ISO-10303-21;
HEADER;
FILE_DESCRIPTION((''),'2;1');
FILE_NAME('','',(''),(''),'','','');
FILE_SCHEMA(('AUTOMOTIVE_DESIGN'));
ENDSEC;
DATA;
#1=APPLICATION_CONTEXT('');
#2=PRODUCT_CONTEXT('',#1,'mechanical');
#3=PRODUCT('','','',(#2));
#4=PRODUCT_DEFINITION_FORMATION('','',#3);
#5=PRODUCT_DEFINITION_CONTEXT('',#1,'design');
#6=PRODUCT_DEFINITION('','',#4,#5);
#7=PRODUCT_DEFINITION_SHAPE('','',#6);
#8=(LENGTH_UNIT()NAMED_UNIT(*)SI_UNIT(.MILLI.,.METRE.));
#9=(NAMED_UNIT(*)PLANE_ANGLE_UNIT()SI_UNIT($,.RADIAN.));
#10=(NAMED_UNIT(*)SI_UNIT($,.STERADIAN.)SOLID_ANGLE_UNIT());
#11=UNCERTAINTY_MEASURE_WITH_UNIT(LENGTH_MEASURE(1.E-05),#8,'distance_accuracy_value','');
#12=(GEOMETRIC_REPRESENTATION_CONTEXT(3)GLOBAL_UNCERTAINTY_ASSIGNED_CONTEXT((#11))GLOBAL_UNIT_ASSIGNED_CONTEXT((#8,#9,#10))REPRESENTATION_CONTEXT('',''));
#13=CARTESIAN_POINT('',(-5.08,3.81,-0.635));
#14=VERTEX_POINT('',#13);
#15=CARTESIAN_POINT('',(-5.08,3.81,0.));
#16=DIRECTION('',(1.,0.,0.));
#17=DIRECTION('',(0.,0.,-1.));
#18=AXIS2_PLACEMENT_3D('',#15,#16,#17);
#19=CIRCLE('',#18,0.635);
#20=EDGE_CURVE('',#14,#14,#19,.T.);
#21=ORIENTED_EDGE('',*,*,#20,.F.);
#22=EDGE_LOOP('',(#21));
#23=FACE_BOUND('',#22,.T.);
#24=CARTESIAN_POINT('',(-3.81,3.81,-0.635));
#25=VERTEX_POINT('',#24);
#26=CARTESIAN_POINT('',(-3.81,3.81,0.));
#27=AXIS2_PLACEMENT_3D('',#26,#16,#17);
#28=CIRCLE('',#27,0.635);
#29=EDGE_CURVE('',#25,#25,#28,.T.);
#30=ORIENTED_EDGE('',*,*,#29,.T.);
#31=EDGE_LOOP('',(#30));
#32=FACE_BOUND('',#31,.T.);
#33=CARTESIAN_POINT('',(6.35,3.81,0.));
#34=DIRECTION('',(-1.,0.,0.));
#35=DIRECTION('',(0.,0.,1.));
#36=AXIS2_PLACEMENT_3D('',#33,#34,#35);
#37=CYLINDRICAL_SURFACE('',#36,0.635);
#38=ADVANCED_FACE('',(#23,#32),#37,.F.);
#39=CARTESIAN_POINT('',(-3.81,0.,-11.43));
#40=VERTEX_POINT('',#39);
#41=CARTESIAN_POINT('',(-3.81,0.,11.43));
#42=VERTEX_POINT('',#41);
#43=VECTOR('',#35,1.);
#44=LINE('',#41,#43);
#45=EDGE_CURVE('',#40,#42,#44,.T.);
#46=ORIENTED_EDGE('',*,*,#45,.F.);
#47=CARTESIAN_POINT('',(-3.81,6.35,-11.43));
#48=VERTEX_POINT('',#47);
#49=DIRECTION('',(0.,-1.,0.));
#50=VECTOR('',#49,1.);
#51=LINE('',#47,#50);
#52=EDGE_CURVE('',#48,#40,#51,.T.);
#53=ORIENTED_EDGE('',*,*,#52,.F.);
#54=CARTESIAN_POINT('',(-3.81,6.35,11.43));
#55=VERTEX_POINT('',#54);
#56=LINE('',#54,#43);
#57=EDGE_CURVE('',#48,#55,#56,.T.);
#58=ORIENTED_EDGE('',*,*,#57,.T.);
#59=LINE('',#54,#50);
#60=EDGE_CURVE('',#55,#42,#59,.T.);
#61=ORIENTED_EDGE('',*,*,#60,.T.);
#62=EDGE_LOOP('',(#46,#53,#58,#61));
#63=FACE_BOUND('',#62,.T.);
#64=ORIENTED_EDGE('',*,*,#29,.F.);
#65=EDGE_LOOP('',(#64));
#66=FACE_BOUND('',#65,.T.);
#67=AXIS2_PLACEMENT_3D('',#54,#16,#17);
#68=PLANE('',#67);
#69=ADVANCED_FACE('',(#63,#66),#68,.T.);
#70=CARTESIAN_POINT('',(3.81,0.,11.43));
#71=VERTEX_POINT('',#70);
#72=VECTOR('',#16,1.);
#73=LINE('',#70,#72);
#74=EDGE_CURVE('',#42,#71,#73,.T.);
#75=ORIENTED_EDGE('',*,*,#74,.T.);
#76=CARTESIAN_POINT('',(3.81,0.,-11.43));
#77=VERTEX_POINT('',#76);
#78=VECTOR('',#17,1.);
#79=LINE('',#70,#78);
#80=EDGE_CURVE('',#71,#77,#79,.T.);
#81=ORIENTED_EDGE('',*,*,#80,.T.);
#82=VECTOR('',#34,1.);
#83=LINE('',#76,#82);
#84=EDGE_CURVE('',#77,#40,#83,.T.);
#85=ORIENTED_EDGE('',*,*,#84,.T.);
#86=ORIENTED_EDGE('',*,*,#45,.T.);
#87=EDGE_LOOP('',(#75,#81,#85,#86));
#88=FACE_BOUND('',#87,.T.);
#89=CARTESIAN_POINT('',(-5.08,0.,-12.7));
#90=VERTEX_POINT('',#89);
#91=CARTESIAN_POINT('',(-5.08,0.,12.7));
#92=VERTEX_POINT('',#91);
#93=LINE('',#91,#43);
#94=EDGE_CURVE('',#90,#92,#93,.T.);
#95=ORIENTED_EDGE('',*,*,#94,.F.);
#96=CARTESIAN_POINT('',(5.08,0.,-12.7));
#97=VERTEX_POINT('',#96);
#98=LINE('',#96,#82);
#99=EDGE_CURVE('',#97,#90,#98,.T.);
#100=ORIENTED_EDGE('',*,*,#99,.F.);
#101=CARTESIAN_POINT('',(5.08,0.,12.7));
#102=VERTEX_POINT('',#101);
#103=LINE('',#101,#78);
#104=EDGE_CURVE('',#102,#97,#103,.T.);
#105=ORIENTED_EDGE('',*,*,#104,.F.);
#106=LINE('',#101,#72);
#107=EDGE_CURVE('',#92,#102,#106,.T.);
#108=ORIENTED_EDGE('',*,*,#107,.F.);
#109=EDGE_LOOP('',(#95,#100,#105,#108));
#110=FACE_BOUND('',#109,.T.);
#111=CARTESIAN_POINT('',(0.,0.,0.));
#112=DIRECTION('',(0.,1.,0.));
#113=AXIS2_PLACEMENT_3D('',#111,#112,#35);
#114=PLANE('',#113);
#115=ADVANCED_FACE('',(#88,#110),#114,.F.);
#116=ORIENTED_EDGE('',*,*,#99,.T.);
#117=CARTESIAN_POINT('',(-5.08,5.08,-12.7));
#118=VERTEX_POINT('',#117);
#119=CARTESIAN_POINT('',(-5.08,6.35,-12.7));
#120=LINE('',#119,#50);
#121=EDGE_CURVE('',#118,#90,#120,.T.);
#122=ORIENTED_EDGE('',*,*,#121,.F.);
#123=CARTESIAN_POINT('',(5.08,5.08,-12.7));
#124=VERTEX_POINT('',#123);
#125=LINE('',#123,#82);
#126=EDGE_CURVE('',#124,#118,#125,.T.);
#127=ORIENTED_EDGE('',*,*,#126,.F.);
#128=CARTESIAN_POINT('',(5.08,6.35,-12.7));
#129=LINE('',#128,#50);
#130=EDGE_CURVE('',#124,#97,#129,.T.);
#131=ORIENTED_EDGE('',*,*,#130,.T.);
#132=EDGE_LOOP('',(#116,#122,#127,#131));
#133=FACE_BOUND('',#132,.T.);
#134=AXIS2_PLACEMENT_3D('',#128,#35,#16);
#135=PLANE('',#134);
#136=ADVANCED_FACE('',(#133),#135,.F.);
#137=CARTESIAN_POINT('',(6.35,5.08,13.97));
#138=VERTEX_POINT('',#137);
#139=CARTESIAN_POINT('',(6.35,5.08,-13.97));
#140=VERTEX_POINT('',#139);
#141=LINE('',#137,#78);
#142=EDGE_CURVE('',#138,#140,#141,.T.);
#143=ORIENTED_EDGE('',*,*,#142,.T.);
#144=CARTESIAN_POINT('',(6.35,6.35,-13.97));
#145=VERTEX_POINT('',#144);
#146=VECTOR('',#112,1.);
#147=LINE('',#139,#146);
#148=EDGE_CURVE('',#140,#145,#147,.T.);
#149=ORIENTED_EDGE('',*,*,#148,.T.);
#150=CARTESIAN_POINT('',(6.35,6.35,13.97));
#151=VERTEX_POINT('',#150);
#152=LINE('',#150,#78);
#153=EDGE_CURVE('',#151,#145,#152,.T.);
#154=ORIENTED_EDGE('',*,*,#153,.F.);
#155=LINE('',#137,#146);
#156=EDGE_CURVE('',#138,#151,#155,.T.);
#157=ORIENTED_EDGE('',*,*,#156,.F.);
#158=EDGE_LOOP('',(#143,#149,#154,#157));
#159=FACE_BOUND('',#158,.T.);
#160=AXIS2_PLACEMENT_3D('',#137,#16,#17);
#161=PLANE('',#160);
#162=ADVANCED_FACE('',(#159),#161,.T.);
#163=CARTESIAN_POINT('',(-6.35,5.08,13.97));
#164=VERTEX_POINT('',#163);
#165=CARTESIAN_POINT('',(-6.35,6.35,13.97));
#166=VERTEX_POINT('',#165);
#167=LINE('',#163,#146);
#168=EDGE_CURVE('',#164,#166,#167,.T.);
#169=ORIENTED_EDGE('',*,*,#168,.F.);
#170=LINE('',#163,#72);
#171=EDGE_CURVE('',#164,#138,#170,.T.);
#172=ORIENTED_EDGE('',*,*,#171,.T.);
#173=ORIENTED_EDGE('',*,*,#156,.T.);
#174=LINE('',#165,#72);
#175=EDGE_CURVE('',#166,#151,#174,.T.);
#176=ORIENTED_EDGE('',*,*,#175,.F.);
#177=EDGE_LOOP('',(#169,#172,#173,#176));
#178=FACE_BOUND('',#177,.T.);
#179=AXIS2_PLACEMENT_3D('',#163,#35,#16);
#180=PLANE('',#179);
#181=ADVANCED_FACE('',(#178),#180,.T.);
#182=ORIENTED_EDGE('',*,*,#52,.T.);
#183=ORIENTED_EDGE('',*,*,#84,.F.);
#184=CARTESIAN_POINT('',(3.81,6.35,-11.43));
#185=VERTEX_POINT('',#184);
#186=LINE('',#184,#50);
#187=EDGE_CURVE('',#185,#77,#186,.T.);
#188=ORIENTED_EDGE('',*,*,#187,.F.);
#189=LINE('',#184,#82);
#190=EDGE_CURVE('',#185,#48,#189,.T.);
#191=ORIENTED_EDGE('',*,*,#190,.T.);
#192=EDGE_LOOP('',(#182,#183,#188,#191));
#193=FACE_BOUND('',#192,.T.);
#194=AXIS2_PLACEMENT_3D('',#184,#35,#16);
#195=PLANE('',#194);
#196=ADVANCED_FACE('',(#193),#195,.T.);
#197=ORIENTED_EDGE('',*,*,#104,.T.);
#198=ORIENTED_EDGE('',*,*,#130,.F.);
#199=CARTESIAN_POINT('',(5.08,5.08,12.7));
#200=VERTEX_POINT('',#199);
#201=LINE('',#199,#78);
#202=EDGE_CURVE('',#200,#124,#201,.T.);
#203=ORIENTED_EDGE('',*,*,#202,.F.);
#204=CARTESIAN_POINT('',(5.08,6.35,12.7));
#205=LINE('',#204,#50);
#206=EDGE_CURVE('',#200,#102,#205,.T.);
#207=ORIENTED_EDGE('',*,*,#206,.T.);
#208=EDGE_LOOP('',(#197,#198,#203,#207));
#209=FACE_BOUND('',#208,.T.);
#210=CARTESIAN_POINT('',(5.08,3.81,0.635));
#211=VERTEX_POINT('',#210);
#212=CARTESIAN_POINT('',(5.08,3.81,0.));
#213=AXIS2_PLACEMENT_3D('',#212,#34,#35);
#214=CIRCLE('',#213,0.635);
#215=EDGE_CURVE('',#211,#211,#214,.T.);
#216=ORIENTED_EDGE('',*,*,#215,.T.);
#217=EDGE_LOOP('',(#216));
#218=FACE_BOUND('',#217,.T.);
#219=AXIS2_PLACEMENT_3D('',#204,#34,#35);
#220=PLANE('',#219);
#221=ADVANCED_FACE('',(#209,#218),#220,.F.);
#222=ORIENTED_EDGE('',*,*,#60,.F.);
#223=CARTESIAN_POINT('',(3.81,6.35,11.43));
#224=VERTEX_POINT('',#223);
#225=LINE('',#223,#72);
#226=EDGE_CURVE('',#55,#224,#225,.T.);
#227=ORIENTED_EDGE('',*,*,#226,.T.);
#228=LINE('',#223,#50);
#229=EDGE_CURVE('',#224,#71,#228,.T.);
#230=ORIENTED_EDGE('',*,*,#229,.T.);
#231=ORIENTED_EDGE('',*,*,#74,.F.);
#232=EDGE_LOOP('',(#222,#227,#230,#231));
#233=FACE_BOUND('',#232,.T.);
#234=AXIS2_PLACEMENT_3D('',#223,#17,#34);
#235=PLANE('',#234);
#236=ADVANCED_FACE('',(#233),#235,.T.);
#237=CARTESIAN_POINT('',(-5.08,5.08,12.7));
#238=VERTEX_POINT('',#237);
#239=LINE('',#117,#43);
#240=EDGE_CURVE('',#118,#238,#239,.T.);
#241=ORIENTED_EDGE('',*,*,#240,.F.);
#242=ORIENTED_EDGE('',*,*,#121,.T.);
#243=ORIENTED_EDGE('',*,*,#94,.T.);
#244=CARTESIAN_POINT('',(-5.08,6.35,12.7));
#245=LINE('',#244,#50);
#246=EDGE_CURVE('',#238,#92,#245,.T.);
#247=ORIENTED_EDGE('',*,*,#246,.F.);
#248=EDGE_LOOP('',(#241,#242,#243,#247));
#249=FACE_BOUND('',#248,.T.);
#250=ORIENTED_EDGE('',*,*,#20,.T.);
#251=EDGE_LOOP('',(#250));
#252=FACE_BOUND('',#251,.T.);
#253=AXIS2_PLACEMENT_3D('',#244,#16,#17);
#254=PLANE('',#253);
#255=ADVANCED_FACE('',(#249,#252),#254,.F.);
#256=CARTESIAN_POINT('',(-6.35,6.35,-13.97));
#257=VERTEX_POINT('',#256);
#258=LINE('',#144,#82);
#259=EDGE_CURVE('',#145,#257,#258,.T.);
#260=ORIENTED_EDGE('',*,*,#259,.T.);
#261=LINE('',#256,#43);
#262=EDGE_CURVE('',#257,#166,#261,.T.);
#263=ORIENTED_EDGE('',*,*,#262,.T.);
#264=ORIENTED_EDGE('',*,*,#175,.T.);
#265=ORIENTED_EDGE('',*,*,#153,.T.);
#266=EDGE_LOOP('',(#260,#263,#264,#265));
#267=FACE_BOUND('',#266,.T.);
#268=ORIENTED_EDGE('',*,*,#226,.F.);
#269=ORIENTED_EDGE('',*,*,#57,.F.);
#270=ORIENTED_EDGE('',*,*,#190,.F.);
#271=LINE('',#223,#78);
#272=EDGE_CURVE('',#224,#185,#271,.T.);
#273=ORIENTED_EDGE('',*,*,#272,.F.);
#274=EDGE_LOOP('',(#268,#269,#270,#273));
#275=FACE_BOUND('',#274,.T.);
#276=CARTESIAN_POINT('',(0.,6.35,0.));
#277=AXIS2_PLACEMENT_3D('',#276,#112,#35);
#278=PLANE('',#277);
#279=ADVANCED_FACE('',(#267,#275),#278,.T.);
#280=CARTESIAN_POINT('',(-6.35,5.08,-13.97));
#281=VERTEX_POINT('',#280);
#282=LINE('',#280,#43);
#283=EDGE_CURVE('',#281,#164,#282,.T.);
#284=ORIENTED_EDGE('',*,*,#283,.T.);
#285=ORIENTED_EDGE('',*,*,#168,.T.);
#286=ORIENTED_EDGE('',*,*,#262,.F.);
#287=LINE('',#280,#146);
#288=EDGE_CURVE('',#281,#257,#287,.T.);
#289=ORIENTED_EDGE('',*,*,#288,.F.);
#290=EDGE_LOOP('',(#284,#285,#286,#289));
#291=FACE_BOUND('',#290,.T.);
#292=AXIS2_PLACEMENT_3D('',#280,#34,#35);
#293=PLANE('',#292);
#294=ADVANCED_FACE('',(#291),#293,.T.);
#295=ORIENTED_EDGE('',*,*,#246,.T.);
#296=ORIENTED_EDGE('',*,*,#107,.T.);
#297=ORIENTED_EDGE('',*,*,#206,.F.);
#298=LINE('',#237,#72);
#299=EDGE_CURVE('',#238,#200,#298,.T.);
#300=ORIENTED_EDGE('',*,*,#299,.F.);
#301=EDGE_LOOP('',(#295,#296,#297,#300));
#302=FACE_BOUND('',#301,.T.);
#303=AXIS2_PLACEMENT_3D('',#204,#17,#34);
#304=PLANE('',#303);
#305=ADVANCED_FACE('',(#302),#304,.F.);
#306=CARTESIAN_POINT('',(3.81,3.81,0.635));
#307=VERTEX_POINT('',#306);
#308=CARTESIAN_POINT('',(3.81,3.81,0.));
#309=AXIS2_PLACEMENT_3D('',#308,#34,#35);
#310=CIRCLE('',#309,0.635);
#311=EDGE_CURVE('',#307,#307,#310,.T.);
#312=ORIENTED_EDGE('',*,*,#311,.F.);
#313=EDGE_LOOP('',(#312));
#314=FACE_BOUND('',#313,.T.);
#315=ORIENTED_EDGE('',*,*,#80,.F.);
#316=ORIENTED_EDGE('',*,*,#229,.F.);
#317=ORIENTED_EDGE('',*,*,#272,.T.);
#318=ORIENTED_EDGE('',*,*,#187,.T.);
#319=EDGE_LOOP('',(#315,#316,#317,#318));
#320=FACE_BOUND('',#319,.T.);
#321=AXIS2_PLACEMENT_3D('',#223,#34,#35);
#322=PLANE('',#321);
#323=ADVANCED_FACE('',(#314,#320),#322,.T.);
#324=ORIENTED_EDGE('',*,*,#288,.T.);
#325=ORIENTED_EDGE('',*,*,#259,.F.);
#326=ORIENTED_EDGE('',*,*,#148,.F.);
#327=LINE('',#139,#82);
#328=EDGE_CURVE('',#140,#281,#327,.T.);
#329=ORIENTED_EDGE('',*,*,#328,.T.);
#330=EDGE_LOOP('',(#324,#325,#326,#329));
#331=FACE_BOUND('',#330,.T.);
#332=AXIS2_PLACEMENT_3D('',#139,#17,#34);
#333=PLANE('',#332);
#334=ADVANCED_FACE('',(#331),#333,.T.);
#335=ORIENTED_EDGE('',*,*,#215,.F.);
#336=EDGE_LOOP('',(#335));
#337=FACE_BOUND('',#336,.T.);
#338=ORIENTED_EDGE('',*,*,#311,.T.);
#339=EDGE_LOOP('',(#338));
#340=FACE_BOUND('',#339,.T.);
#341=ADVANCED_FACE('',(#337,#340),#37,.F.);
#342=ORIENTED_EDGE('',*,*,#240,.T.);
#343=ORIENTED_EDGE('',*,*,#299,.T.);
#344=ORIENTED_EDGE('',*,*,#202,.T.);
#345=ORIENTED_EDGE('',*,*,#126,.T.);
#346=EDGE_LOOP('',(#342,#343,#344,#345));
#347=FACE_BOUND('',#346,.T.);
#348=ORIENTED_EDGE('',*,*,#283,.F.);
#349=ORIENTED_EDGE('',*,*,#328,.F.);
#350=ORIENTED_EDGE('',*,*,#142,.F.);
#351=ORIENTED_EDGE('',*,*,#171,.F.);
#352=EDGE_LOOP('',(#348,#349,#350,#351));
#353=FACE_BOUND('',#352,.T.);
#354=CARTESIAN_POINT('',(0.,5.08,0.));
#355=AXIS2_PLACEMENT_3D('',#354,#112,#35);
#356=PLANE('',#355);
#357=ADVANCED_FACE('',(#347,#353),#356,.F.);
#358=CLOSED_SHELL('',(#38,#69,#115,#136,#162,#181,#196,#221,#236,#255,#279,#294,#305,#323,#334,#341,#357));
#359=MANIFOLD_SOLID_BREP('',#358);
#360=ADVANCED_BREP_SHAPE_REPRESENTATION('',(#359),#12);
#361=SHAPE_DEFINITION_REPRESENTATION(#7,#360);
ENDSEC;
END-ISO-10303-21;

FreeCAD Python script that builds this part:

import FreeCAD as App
import Part
import Sketcher
from FreeCAD import Vector
Q = App.Units.Quantity

doc = App.newDocument("Part")
params = doc.addObject("Spreadsheet::Sheet", "Params")
for row, (alias, value) in enumerate([
    ("sketch1_height", "1 in"),
    ("sketch1_width", "0.4 in"),
    ("sketch1_width2", "0.3 in"),
    ("sketch1_height2", "0.9 in"),
    ("pad1_length", "0.25 in"),
    ("sketch2_height", "1 in"),
    ("sketch2_width", "0.5 in"),
    ("sketch2_width2", "0.4 in"),
    ("sketch2_height2", "1.1 in"),
    ("pad2_length", "0.05 in"),
    ("sketch3_diameter", "0.05 in"),
], start=1):
    params.set(f"A{row}", alias)
    params.set(f"B{row}", "=" + value)
    params.setAlias(f"B{row}", alias)

body = doc.addObject("PartDesign::Body", "Body")

# Sketch on XZ plane
sketch1 = doc.addObject("Sketcher::SketchObject", "Sketch")
body.addObject(sketch1)
sketch1.AttachmentSupport = (doc.XZ_Plane, [""])
sketch1.MapMode = "FlatFace"
sketch1.addGeometry([
    Part.LineSegment(Vector(-5, -13, 0), Vector(-5, 13, 0)),  # 0
    Part.LineSegment(Vector(-5, 13, 0), Vector(5, 13, 0)),  # 1
    Part.LineSegment(Vector(5, 13, 0), Vector(5, -13, 0)),  # 2
    Part.LineSegment(Vector(5, -13, 0), Vector(-5, -13, 0)),  # 3
    Part.LineSegment(Vector(4, 11, 0), Vector(-4, 11, 0)),  # 4
    Part.LineSegment(Vector(-4, 11, 0), Vector(-4, -11, 0)),  # 5
    Part.LineSegment(Vector(-4, -11, 0), Vector(4, -11, 0)),  # 6
    Part.LineSegment(Vector(4, -11, 0), Vector(4, 11, 0)),  # 7
], False)
sketch1.addConstraint([
    Sketcher.Constraint("Coincident", 0, 2, 1, 1),
    Sketcher.Constraint("Coincident", 1, 2, 2, 1),
    Sketcher.Constraint("Coincident", 2, 2, 3, 1),
    Sketcher.Constraint("Coincident", 3, 2, 0, 1),
    Sketcher.Constraint("Coincident", 4, 2, 5, 1),
    Sketcher.Constraint("Coincident", 5, 2, 6, 1),
    Sketcher.Constraint("Coincident", 6, 2, 7, 1),
    Sketcher.Constraint("Coincident", 7, 2, 4, 1),
    Sketcher.Constraint("Vertical", 0),
    Sketcher.Constraint("Horizontal", 1),
    Sketcher.Constraint("Vertical", 2),
    Sketcher.Constraint("Horizontal", 3),
    Sketcher.Constraint("Horizontal", 4),
    Sketcher.Constraint("Vertical", 5),
    Sketcher.Constraint("Horizontal", 6),
    Sketcher.Constraint("Vertical", 7),
    Sketcher.Constraint("Symmetric", 0, 2, 2, 2, -1, 1),
    Sketcher.Constraint("Symmetric", 4, 2, 6, 2, -1, 1),
    Sketcher.Constraint("DistanceY", 0, 1, 0, 2, Q("1 in")),
    Sketcher.Constraint("DistanceX", 1, 1, 1, 2, Q("0.4 in")),
    Sketcher.Constraint("DistanceX", 4, 2, 4, 1, Q("0.3 in")),
    Sketcher.Constraint("DistanceY", 5, 2, 5, 1, Q("0.9 in")),
])
sketch1.setExpression("Constraints[18]", "Params.sketch1_height")
sketch1.setExpression("Constraints[19]", "Params.sketch1_width")
sketch1.setExpression("Constraints[20]", "Params.sketch1_width2")
sketch1.setExpression("Constraints[21]", "Params.sketch1_height2")
pad1 = doc.addObject("PartDesign::Pad", "Pad")
body.addObject(pad1)
pad1.Profile = sketch1
pad1.setExpression("Length", "Params.pad1_length")
pad1.Reversed = True

# Sketch on XZ plane
sketch2 = doc.addObject("Sketcher::SketchObject", "Sketch001")
body.addObject(sketch2)
sketch2.AttachmentSupport = (doc.XZ_Plane, [""])
sketch2.MapMode = "FlatFace"
sketch2.AttachmentOffset = App.Placement(Vector(0, 0, -0.25 * 25.4), App.Rotation())
sketch2.addGeometry([
    Part.LineSegment(Vector(-6, -14, 0), Vector(-6, 14, 0)),  # 0
    Part.LineSegment(Vector(-6, 14, 0), Vector(6, 14, 0)),  # 1
    Part.LineSegment(Vector(6, 14, 0), Vector(6, -14, 0)),  # 2
    Part.LineSegment(Vector(6, -14, 0), Vector(-6, -14, 0)),  # 3
    Part.LineSegment(Vector(5, 13, 0), Vector(-5, 13, 0)),  # 4
    Part.LineSegment(Vector(-5, 13, 0), Vector(-5, -13, 0)),  # 5
    Part.LineSegment(Vector(-5, -13, 0), Vector(5, -13, 0)),  # 6
    Part.LineSegment(Vector(5, -13, 0), Vector(5, 13, 0)),  # 7
], False)
sketch2.addConstraint([
    Sketcher.Constraint("Coincident", 0, 2, 1, 1),
    Sketcher.Constraint("Coincident", 1, 2, 2, 1),
    Sketcher.Constraint("Coincident", 2, 2, 3, 1),
    Sketcher.Constraint("Coincident", 3, 2, 0, 1),
    Sketcher.Constraint("Coincident", 4, 2, 5, 1),
    Sketcher.Constraint("Coincident", 5, 2, 6, 1),
    Sketcher.Constraint("Coincident", 6, 2, 7, 1),
    Sketcher.Constraint("Coincident", 7, 2, 4, 1),
    Sketcher.Constraint("Vertical", 0),
    Sketcher.Constraint("Horizontal", 1),
    Sketcher.Constraint("Vertical", 2),
    Sketcher.Constraint("Horizontal", 3),
    Sketcher.Constraint("Horizontal", 4),
    Sketcher.Constraint("Vertical", 5),
    Sketcher.Constraint("Horizontal", 6),
    Sketcher.Constraint("Vertical", 7),
    Sketcher.Constraint("Symmetric", 0, 2, 2, 2, -1, 1),
    Sketcher.Constraint("Symmetric", 4, 2, 6, 2, -1, 1),
    Sketcher.Constraint("DistanceY", 5, 2, 5, 1, Q("1 in")),
    Sketcher.Constraint("DistanceX", 1, 1, 1, 2, Q("0.5 in")),
    Sketcher.Constraint("DistanceX", 4, 2, 4, 1, Q("0.4 in")),
    Sketcher.Constraint("DistanceY", 0, 1, 0, 2, Q("1.1 in")),
])
sketch2.setExpression("Constraints[18]", "Params.sketch2_height")
sketch2.setExpression("Constraints[19]", "Params.sketch2_width")
sketch2.setExpression("Constraints[20]", "Params.sketch2_width2")
sketch2.setExpression("Constraints[21]", "Params.sketch2_height2")
pad2 = doc.addObject("PartDesign::Pad", "Pad001")
body.addObject(pad2)
pad2.Profile = sketch2
pad2.setExpression("Length", "Params.pad2_length")

# Sketch on YZ plane
sketch3 = doc.addObject("Sketcher::SketchObject", "Sketch002")
body.addObject(sketch3)
sketch3.AttachmentSupport = (doc.YZ_Plane, [""])
sketch3.MapMode = "FlatFace"
sketch3.AttachmentOffset = App.Placement(Vector(0, 0, 0.15 * 25.4), App.Rotation())
sketch3.addGeometry(Part.Circle(Vector(3.8, 0, 0), Vector(0, 0, 1), 0.6), False)
sketch3.addConstraint([
    Sketcher.Constraint("PointOnObject", 0, 3, -1),
    Sketcher.Constraint("Diameter", 0, Q("0.05 in")),
    Sketcher.Constraint("DistanceX", -1, 1, 0, 3, Q("0.15 in")),
])
sketch3.setExpression("Constraints[1]", "Params.sketch3_diameter")
pocket1 = doc.addObject("PartDesign::Pocket", "Pocket")
body.addObject(pocket1)
pocket1.Profile = sketch3
pocket1.Type = "ThroughAll"
pocket1.Midplane = True

doc.recompute()
